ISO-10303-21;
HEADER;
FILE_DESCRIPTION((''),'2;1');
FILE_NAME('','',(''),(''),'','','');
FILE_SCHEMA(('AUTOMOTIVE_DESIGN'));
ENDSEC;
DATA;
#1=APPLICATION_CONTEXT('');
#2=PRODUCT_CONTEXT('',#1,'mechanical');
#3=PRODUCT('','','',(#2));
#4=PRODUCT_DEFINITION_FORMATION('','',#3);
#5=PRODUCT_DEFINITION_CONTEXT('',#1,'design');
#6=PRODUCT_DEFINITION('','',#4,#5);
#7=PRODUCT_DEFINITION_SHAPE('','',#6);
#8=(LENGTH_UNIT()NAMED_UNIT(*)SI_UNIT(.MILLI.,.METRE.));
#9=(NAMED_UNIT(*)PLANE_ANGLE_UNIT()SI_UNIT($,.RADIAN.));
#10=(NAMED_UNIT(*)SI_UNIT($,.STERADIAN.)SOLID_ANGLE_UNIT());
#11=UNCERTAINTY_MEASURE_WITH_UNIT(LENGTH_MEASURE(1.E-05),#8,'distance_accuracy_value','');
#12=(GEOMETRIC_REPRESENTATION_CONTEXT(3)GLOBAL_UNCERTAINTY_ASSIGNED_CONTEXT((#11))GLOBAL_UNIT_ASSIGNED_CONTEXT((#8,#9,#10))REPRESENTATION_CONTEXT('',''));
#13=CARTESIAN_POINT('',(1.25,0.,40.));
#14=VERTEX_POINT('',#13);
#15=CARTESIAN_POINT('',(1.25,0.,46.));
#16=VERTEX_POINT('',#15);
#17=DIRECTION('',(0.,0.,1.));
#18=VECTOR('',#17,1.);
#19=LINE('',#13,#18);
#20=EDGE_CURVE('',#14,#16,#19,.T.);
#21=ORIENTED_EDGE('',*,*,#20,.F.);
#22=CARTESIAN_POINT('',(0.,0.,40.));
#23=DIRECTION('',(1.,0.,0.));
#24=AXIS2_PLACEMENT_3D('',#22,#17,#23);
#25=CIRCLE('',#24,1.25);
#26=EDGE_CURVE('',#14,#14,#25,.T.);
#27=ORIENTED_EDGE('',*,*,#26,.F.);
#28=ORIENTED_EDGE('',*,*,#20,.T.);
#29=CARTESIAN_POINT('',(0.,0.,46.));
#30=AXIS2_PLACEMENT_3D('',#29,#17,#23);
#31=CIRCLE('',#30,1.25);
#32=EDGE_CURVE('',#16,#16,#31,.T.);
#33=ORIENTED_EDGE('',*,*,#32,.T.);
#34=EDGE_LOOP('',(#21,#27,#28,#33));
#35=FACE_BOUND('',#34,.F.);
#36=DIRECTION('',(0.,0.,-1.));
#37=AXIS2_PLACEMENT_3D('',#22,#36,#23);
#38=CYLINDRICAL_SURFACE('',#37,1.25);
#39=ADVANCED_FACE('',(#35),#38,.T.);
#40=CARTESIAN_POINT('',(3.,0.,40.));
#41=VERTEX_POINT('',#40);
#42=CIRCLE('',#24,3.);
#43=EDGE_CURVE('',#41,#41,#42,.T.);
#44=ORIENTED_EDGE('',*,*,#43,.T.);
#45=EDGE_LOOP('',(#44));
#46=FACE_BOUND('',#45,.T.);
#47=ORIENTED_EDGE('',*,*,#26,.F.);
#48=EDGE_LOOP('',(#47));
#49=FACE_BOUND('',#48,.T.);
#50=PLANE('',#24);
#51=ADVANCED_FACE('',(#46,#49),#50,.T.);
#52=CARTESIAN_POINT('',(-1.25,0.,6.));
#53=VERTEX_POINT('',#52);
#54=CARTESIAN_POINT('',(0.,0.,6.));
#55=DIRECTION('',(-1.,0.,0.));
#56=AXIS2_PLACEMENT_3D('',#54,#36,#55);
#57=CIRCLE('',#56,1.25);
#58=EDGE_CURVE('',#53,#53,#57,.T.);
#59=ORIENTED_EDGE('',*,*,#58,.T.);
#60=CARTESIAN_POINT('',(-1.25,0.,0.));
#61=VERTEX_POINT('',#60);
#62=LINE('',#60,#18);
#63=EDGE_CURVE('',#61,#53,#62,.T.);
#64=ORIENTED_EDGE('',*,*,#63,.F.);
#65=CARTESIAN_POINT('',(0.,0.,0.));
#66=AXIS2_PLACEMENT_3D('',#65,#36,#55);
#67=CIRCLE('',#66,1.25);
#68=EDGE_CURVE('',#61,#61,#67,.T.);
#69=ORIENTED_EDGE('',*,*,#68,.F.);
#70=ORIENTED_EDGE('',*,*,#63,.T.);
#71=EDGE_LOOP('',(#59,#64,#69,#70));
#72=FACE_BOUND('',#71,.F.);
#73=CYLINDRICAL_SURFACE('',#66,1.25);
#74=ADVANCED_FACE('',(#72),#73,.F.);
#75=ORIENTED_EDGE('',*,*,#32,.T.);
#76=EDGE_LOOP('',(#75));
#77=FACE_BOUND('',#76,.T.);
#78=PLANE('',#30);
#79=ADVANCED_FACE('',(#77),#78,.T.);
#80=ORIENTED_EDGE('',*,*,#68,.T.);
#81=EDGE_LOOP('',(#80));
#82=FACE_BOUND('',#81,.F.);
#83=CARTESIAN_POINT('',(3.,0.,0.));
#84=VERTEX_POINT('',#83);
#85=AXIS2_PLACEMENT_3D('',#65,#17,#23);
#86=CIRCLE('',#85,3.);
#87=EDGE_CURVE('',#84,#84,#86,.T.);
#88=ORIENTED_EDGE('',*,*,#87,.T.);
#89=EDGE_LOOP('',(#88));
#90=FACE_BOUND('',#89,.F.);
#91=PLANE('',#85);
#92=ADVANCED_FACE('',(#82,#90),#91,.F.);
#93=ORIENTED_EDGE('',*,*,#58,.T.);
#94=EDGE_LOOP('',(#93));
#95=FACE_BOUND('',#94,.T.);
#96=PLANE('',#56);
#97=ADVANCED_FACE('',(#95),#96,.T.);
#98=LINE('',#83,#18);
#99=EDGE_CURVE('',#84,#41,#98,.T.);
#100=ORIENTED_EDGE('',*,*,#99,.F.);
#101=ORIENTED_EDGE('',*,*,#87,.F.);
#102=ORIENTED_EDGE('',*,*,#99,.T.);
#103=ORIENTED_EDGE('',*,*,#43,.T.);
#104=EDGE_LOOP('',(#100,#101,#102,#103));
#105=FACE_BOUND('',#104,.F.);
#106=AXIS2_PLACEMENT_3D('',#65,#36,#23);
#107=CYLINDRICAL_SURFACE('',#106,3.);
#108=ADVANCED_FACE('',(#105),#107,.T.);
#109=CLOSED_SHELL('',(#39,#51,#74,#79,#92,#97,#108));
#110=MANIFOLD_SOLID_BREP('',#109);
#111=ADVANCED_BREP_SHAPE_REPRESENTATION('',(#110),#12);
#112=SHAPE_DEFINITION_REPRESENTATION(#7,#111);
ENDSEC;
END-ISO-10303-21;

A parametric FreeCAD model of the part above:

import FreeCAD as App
import Part
import Sketcher

V = App.Vector

doc = App.newDocument("Part")
params = doc.addObject("Spreadsheet::Sheet", "Params")
for row, (alias, value) in enumerate([
    ("sketch1_diameter", "6 mm"),
    ("pad1_length", "45 mm"),
    ("sketch2_diameter", "2.5 mm"),
    ("pocket1_length", "6 mm"),
    ("sketch3_diameter", "2.5 mm"),
    ("pocket2_length", "6 mm"),
    ("sketch4_diameter", "6 mm"),
    ("sketch4_diameter2", "2.5 mm"),
    ("pocket3_length", "5 mm"),
    ("sketch5_diameter", "2.5 mm"),
    ("pocket4_length", "6 mm"),
    ("sketch6_diameter", "2.5 mm"),
    ("pad2_length", "12 mm"),
], start=1):
    params.set(f"A{row}", alias)
    params.set(f"B{row}", "=" + value)
    params.setAlias(f"B{row}", alias)

body = doc.addObject("PartDesign::Body", "Body")

sketch1 = body.newObject("Sketcher::SketchObject", "Sketch")
sketch1.AttachmentSupport = (doc.getObject("XY_Plane"), [""])
sketch1.MapMode = "FlatFace"
sketch1.addGeometry(Part.Circle(V(0, 0, 0), V(0, 0, 1), 3), False)
sketch1.addConstraint([
    Sketcher.Constraint("Coincident", 0, 3, -1, 1),
    Sketcher.Constraint("Diameter", 0, 6.0),
])
sketch1.setExpression("Constraints[1]", "Params.sketch1_diameter")
pad1 = body.newObject("PartDesign::Pad", "Pad")
pad1.Profile = sketch1
pad1.setExpression("Length", "Params.pad1_length")

sketch2 = body.newObject("Sketcher::SketchObject", "Sketch001")
sketch2.AttachmentSupport = (doc.getObject("XY_Plane"), [""])
sketch2.MapMode = "FlatFace"
sketch2.AttachmentOffset = App.Placement(V(0, 0, 45), App.Rotation())
sketch2.addGeometry(Part.Circle(V(0, 0, 0), V(0, 0, 1), 1.2), False)
sketch2.addConstraint([
    Sketcher.Constraint("Coincident", 0, 3, -1, 1),
    Sketcher.Constraint("Diameter", 0, 2.5),
])
sketch2.setExpression("Constraints[1]", "Params.sketch2_diameter")
pocket1 = body.newObject("PartDesign::Pocket", "Pocket")
pocket1.Profile = sketch2
pocket1.setExpression("Length", "Params.pocket1_length")

sketch3 = body.newObject("Sketcher::SketchObject", "Sketch002")
sketch3.AttachmentSupport = (doc.getObject("XY_Plane"), [""])
sketch3.MapMode = "FlatFace"
sketch3.addGeometry(Part.Circle(V(0, 0, 0), V(0, 0, 1), 1.2), False)
sketch3.addConstraint([
    Sketcher.Constraint("Coincident", 0, 3, -1, 1),
    Sketcher.Constraint("Diameter", 0, 2.5),
])
sketch3.setExpression("Constraints[1]", "Params.sketch3_diameter")
pocket2 = body.newObject("PartDesign::Pocket", "Pocket001")
pocket2.Profile = sketch3
pocket2.setExpression("Length", "Params.pocket2_length")
pocket2.Reversed = True

sketch4 = body.newObject("Sketcher::SketchObject", "Sketch003")
sketch4.AttachmentSupport = (doc.getObject("XY_Plane"), [""])
sketch4.MapMode = "FlatFace"
sketch4.AttachmentOffset = App.Placement(V(0, 0, 45), App.Rotation())
sketch4.addGeometry([
    Part.Circle(V(0, 0, 0), V(0, 0, 1), 3),
    Part.Circle(V(0, 0, 0), V(0, 0, 1), 1.2),
], False)
sketch4.addConstraint([
    Sketcher.Constraint("Coincident", 0, 3, -1, 1),
    Sketcher.Constraint("Coincident", 1, 3, -1, 1),
    Sketcher.Constraint("Diameter", 0, 6.0),
    Sketcher.Constraint("Diameter", 1, 2.5),
])
sketch4.setExpression("Constraints[2]", "Params.sketch4_diameter")
sketch4.setExpression("Constraints[3]", "Params.sketch4_diameter2")
pocket3 = body.newObject("PartDesign::Pocket", "Pocket002")
pocket3.Profile = sketch4
pocket3.setExpression("Length", "Params.pocket3_length")

sketch5 = body.newObject("Sketcher::SketchObject", "Sketch004")
sketch5.AttachmentSupport = (doc.getObject("XY_Plane"), [""])
sketch5.MapMode = "FlatFace"
sketch5.AttachmentOffset = App.Placement(V(0, 0, 40), App.Rotation())
sketch5.addGeometry(Part.Circle(V(0, 0, 0), V(0, 0, 1), 1.2), False)
sketch5.addConstraint([
    Sketcher.Constraint("Coincident", 0, 3, -1, 1),
    Sketcher.Constraint("Diameter", 0, 2.5),
])
sketch5.setExpression("Constraints[1]", "Params.sketch5_diameter")
pocket4 = body.newObject("PartDesign::Pocket", "Pocket003")
pocket4.Profile = sketch5
pocket4.setExpression("Length", "Params.pocket4_length")

sketch6 = body.newObject("Sketcher::SketchObject", "Sketch005")
sketch6.AttachmentSupport = (doc.getObject("XY_Plane"), [""])
sketch6.MapMode = "FlatFace"
sketch6.AttachmentOffset = App.Placement(V(0, 0, 40), App.Rotation())
sketch6.addGeometry(Part.Circle(V(0, 0, 0), V(0, 0, 1), 1.2), False)
sketch6.addConstraint([
    Sketcher.Constraint("Coincident", 0, 3, -1, 1),
    Sketcher.Constraint("Diameter", 0, 2.5),
])
sketch6.setExpression("Constraints[1]", "Params.sketch6_diameter")
pad2 = body.newObject("PartDesign::Pad", "Pad001")
pad2.Profile = sketch6
pad2.setExpression("Length", "Params.pad2_length")
pad2.Midplane = True

doc.recompute()
